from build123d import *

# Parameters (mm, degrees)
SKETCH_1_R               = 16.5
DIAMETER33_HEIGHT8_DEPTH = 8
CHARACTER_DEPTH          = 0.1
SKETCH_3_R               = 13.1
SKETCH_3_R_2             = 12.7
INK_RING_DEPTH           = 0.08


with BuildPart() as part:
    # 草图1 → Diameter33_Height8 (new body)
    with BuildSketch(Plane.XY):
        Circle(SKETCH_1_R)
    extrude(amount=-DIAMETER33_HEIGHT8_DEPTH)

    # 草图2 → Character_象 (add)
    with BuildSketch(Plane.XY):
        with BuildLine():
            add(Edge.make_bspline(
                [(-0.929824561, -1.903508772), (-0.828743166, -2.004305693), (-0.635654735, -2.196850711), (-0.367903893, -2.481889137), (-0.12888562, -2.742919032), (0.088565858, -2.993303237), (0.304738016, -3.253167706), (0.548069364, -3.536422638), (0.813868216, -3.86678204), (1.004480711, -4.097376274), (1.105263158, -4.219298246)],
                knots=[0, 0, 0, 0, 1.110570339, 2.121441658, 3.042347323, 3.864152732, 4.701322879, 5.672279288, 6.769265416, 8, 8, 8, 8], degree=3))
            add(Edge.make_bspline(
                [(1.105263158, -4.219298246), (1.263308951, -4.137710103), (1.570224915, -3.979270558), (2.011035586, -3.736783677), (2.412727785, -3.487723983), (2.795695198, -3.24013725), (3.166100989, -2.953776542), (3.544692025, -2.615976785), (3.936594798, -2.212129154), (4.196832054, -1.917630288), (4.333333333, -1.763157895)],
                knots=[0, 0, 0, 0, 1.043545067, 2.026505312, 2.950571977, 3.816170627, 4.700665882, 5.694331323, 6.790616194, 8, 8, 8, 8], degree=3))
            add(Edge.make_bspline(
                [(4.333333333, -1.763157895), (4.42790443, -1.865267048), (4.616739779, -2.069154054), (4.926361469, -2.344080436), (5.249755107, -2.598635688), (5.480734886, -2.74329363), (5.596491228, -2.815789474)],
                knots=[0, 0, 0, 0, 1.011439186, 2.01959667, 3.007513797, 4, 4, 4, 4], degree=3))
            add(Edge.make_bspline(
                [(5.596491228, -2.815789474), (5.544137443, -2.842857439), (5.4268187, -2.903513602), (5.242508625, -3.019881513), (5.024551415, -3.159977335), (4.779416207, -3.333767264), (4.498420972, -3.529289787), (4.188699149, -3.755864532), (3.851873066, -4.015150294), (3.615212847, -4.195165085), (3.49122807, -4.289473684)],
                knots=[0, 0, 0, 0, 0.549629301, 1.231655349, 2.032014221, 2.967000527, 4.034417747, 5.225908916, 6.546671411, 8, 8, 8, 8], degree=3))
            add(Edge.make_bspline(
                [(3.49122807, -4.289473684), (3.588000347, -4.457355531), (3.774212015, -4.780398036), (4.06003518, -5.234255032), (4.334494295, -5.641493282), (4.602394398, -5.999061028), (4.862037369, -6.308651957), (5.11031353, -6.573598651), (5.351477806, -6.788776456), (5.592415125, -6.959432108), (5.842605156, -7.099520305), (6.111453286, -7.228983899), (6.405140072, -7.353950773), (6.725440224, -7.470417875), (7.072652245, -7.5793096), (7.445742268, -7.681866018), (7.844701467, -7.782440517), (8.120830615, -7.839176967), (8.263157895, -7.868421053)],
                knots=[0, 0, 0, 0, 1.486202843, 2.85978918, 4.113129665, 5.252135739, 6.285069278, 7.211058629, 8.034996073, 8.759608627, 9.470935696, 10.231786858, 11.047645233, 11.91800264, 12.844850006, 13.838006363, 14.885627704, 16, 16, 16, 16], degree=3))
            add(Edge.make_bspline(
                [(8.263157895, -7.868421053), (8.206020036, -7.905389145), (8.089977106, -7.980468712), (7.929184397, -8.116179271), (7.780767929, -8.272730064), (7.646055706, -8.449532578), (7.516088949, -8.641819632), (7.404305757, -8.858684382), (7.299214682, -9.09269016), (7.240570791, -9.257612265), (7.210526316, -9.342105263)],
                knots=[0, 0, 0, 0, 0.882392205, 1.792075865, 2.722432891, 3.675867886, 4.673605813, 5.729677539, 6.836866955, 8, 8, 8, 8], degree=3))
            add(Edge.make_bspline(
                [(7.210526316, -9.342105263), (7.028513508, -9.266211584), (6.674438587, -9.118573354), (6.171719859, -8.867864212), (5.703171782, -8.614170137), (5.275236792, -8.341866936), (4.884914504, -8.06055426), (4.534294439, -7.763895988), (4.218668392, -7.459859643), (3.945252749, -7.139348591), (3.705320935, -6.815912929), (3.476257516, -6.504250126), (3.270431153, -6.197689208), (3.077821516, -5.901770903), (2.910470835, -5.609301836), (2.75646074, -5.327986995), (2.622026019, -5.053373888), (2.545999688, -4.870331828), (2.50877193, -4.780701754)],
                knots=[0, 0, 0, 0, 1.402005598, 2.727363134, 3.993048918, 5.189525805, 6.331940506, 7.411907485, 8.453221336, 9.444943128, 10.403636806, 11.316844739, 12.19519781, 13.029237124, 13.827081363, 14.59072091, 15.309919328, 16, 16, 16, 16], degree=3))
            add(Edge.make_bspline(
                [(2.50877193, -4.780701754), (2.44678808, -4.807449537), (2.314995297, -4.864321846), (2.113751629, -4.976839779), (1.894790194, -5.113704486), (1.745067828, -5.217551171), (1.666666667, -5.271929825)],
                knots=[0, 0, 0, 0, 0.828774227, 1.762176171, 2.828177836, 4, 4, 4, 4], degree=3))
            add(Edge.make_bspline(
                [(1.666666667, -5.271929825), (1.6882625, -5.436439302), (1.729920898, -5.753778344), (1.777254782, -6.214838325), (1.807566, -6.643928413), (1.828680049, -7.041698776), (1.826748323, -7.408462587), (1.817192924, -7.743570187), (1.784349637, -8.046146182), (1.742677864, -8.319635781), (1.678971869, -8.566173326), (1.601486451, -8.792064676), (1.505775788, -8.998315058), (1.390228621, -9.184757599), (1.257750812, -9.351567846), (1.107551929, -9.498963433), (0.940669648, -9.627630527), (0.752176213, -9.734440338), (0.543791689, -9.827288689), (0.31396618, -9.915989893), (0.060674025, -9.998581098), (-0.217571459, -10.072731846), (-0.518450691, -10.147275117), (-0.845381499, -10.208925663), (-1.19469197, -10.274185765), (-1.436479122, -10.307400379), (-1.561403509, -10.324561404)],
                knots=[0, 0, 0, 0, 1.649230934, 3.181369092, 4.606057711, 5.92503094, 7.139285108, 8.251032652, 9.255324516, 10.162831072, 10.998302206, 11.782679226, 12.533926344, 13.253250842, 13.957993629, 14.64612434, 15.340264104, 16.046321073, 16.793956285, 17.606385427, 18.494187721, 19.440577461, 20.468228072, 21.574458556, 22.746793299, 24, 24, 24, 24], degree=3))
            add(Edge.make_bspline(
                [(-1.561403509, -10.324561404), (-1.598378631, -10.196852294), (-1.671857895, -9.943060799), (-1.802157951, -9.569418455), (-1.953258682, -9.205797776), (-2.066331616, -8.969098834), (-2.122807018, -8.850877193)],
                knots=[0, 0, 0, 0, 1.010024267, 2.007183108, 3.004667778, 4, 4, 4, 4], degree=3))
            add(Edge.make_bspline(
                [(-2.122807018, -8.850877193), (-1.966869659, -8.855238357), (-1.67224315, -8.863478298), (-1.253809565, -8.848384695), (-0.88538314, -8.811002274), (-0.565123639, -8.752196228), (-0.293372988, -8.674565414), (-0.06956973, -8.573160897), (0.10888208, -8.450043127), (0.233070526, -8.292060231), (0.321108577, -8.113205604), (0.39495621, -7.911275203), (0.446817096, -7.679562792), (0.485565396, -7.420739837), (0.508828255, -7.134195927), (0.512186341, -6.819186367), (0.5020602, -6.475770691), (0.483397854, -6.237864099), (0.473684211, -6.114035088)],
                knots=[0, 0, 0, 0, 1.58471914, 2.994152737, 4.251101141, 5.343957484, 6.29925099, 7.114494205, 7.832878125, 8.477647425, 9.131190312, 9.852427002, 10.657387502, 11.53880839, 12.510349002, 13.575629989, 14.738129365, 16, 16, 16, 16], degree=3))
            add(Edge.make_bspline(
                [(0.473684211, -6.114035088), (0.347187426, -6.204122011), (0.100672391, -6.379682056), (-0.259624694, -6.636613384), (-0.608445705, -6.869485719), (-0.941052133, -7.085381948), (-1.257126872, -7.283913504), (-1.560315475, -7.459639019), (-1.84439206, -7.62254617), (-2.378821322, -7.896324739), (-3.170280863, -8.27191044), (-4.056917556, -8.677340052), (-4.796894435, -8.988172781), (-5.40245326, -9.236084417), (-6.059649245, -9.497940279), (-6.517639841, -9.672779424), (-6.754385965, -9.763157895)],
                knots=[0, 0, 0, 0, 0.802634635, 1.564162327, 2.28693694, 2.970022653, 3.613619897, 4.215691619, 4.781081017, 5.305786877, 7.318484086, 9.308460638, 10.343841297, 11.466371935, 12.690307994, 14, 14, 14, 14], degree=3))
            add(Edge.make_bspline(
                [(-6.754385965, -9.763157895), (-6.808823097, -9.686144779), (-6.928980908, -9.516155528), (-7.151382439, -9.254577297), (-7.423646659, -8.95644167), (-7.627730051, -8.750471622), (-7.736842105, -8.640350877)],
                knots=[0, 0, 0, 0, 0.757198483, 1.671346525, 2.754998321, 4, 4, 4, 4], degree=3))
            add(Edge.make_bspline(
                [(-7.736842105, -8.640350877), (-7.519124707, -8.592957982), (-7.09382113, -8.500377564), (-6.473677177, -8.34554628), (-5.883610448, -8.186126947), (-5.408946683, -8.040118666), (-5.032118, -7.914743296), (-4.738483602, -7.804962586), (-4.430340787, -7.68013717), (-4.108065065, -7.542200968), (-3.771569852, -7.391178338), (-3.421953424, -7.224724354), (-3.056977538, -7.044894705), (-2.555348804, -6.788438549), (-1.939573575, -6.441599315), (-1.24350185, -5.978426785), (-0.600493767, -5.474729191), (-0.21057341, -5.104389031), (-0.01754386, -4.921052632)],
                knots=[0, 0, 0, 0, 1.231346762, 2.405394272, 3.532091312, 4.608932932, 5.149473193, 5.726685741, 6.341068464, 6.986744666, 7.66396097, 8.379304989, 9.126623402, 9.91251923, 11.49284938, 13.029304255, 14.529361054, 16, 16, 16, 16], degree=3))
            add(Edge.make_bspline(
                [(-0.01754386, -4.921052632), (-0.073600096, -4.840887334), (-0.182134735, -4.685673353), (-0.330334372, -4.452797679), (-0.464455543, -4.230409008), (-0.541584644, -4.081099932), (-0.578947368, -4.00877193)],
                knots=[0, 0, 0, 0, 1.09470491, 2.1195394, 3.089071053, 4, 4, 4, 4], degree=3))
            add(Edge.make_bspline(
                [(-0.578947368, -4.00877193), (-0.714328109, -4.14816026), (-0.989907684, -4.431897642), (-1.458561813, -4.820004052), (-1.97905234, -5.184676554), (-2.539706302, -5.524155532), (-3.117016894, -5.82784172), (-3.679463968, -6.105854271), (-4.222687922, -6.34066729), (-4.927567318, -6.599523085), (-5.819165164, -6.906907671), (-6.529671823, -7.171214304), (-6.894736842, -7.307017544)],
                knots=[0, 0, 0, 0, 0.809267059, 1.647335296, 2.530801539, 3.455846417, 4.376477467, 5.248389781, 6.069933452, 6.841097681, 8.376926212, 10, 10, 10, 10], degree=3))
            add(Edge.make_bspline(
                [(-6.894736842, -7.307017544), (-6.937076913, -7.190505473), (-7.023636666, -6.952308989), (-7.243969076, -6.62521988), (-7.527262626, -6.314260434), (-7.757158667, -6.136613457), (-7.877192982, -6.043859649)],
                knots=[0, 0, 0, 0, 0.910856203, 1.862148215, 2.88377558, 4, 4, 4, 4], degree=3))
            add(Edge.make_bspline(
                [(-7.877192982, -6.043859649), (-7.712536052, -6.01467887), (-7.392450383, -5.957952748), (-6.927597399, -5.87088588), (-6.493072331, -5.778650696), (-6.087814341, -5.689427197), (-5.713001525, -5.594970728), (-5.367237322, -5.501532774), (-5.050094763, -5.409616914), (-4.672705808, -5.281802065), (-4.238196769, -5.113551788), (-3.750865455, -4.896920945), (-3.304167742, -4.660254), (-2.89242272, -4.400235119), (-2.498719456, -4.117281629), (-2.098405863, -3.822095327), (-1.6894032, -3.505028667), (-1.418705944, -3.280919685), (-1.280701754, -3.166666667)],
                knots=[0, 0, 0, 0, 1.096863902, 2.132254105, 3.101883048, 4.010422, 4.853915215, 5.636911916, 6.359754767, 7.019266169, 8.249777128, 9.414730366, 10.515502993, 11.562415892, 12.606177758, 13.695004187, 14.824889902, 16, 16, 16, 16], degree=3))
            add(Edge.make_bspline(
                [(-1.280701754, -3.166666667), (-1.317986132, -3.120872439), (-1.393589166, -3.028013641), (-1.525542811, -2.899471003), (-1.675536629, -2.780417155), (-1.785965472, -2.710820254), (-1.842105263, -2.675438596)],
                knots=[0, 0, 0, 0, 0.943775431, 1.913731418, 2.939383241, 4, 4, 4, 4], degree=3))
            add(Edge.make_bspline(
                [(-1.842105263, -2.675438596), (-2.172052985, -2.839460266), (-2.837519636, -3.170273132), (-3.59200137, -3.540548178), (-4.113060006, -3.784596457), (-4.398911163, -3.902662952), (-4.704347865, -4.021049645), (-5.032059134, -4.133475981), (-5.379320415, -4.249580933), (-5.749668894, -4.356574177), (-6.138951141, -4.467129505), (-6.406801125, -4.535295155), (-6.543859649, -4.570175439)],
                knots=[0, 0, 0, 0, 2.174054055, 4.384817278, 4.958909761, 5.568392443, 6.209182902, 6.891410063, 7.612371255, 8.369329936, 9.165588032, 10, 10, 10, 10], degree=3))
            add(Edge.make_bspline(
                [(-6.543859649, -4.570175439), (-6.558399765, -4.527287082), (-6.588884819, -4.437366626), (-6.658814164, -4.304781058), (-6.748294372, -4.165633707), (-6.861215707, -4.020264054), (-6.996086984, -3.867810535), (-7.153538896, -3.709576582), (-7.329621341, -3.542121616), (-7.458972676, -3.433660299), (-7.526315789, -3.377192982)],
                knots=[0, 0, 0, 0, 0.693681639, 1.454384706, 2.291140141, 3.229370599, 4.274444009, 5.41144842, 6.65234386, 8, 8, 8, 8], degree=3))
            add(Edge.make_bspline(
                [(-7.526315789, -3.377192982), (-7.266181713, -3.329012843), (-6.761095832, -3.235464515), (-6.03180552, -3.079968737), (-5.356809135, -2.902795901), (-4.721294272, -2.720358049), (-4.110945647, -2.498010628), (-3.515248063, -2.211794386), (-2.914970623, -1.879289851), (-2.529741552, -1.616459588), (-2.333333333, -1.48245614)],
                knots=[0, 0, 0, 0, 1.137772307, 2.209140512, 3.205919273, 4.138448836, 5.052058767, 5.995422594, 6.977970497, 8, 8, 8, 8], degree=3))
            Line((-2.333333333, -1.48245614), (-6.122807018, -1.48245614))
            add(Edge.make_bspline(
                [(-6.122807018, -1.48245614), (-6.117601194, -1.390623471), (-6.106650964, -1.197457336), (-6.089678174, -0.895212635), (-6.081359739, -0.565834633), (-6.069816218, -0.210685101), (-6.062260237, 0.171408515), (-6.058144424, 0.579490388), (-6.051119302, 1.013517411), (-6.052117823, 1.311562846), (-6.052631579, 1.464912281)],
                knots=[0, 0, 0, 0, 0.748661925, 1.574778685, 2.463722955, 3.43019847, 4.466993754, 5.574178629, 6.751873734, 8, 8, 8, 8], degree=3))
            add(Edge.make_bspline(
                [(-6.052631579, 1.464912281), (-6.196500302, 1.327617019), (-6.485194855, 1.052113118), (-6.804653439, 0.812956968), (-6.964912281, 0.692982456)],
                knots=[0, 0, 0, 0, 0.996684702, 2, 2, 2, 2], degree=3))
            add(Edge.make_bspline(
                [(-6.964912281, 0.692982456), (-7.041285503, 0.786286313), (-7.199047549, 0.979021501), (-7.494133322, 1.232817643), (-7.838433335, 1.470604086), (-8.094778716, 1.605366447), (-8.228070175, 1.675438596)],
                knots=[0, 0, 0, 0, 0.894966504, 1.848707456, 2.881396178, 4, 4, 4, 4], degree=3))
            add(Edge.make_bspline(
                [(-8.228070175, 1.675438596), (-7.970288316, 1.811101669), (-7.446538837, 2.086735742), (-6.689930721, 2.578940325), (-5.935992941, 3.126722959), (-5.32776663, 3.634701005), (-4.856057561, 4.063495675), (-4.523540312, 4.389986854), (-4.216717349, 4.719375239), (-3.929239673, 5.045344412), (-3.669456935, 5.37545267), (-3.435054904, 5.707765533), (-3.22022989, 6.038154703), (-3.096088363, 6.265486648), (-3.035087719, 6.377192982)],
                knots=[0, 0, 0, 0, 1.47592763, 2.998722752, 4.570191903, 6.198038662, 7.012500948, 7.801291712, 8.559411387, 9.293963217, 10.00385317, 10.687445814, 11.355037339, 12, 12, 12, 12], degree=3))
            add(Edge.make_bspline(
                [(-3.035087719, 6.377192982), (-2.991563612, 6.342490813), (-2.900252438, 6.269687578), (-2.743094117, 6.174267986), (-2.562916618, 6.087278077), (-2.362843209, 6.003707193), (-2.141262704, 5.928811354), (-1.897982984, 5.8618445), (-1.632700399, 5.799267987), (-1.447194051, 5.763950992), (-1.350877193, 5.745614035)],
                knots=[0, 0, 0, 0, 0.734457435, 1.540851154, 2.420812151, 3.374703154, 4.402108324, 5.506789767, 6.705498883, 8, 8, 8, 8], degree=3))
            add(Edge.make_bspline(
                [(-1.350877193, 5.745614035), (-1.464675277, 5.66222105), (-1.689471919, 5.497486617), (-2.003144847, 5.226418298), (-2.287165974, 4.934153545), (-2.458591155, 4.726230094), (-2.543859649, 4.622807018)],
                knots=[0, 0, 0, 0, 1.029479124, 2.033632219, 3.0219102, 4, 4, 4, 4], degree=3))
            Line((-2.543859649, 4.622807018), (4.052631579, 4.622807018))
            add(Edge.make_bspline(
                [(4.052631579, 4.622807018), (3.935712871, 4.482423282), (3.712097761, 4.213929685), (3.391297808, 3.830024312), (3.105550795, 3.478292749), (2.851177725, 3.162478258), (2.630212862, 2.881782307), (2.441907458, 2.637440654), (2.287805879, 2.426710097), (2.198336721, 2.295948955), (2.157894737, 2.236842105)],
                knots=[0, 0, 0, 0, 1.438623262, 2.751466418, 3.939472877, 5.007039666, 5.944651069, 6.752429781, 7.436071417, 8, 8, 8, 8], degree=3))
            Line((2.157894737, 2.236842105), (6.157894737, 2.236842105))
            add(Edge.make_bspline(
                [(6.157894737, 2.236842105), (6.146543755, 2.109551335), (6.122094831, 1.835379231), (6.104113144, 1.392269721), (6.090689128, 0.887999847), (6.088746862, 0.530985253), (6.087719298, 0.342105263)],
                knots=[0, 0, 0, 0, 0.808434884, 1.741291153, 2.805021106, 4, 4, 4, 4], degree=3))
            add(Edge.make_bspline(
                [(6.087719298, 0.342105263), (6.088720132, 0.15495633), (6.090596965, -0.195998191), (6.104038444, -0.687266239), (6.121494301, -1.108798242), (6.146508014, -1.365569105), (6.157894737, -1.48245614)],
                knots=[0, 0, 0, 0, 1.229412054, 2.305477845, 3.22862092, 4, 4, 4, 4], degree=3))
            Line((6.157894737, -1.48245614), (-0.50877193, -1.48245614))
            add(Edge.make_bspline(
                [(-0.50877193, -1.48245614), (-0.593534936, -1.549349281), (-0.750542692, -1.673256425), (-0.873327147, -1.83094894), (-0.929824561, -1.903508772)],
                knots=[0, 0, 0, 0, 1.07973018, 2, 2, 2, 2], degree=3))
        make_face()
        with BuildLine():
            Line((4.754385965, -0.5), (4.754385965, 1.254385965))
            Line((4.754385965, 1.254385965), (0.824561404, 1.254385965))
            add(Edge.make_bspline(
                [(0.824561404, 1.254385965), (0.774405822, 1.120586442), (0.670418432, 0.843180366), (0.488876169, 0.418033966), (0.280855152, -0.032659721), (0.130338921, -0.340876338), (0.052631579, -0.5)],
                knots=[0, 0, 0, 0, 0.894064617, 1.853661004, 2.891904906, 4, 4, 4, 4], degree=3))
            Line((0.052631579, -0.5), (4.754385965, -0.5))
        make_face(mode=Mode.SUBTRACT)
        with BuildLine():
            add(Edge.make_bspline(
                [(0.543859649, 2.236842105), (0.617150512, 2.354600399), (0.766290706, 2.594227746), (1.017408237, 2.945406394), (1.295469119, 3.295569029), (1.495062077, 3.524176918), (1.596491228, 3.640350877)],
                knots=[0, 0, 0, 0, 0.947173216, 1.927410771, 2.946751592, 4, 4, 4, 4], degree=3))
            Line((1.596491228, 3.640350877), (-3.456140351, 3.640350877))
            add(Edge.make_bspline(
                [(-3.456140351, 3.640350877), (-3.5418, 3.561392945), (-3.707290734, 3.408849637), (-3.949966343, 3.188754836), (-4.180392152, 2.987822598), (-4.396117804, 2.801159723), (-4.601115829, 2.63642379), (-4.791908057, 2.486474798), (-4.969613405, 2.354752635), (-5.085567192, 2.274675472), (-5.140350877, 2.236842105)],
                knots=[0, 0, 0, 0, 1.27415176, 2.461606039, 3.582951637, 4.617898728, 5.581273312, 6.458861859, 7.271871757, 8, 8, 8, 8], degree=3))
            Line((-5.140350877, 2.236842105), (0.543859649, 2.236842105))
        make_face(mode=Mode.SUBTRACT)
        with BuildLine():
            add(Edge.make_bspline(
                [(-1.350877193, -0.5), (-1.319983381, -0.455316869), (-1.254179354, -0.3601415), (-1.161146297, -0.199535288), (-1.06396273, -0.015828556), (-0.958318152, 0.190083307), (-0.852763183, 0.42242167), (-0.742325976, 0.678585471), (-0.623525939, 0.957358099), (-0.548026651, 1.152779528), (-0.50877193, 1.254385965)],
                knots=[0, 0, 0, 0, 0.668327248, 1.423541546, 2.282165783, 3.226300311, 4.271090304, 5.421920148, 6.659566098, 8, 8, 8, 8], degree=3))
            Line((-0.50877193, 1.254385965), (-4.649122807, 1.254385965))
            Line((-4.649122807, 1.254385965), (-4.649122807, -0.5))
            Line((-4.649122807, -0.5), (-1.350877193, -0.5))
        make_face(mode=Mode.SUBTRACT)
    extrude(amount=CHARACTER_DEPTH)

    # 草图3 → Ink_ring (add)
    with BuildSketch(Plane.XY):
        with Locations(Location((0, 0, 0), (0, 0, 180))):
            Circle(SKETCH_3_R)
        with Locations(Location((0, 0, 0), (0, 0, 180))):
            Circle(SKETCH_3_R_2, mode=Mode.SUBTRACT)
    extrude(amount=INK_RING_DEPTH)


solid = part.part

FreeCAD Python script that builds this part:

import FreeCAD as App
import Part
import Sketcher
Q = App.Units.Quantity

doc = App.newDocument("Part")
body = doc.addObject("PartDesign::Body", "Body")

# Sketch on XY plane
sketch1 = body.newObject("Sketcher::SketchObject", "Sketch")
sketch1.AttachmentSupport = (doc.getObject("XY_Plane"), [""])
sketch1.MapMode = "FlatFace"
sketch1.addGeometry(Part.Circle(App.Vector(0, 0, 0), App.Vector(0, 0, 1), 16), False)
sketch1.addConstraint([
    Sketcher.Constraint("Coincident", 0, 3, -1, 1),
    Sketcher.Constraint("Diameter", 0, Q("33 mm")),
])
pad1 = body.newObject("PartDesign::Pad", "Pad")
pad1.Profile = sketch1
pad1.Length = 8
pad1.Reversed = True

# Sketch on XY plane
sketch2 = body.newObject("Sketcher::SketchObject", "Sketch001")
sketch2.AttachmentSupport = (doc.getObject("XY_Plane"), [""])
sketch2.MapMode = "FlatFace"
sketch2.addGeometry([
    Part.BSplineCurve([App.Vector(-0.929825, -1.903509, 0), App.Vector(-0.828743, -2.004306, 0), App.Vector(-0.635655, -2.196851, 0), App.Vector(-0.367904, -2.481889, 0), App.Vector(-0.128886, -2.742919, 0), App.Vector(0.088566, -2.993303, 0), App.Vector(0.304738, -3.253168, 0), App.Vector(0.548069, -3.536423, 0), App.Vector(0.813868, -3.866782, 0), App.Vector(1.004481, -4.097376, 0), App.Vector(1.105263, -4.219298, 0)], [4, 1, 1, 1, 1, 1, 1, 1, 4], [0, 1.110570339, 2.121441658, 3.042347323, 3.864152732, 4.701322879, 5.672279288, 6.769265416, 8], False, 3, [1, 1, 1, 1, 1, 1, 1, 1, 1, 1, 1], False),  # 0
    Part.BSplineCurve([App.Vector(-0.508772, -1.482456, 0), App.Vector(-0.593535, -1.549349, 0), App.Vector(-0.750543, -1.673256, 0), App.Vector(-0.873327, -1.830949, 0), App.Vector(-0.929825, -1.903509, 0)], [4, 1, 4], [0, 1.07973018, 2], False, 3, [1, 1, 1, 1, 1], False),  # 1
    Part.LineSegment(App.Vector(-0.508772, -1.482456, 0), App.Vector(6.157895, -1.482456, 0)),  # 2
    Part.BSplineCurve([App.Vector(6.087719, 0.342105, 0), App.Vector(6.08872, 0.154956, 0), App.Vector(6.090597, -0.195998, 0), App.Vector(6.104038, -0.687266, 0), App.Vector(6.121494, -1.108798, 0), App.Vector(6.146508, -1.365569, 0), App.Vector(6.157895, -1.482456, 0)], [4, 1, 1, 1, 4], [0, 1.229412054, 2.305477845, 3.22862092, 4], False, 3, [1, 1, 1, 1, 1, 1, 1], False),  # 3
    Part.BSplineCurve([App.Vector(6.157895, 2.236842, 0), App.Vector(6.146544, 2.109551, 0), App.Vector(6.122095, 1.835379, 0), App.Vector(6.104113, 1.39227, 0), App.Vector(6.090689, 0.888, 0), App.Vector(6.088747, 0.530985, 0), App.Vector(6.087719, 0.342105, 0)], [4, 1, 1, 1, 4], [0, 0.808434884, 1.741291153, 2.805021106, 4], False, 3, [1, 1, 1, 1, 1, 1, 1], False),  # 4
    Part.LineSegment(App.Vector(6.157895, 2.236842, 0), App.Vector(2.157895, 2.236842, 0)),  # 5
    Part.BSplineCurve([App.Vector(4.052632, 4.622807, 0), App.Vector(3.935713, 4.482423, 0), App.Vector(3.712098, 4.21393, 0), App.Vector(3.391298, 3.830024, 0), App.Vector(3.105551, 3.478293, 0), App.Vector(2.851178, 3.162478, 0), App.Vector(2.630213, 2.881782, 0), App.Vector(2.441907, 2.637441, 0), App.Vector(2.287806, 2.42671, 0), App.Vector(2.198337, 2.295949, 0), App.Vector(2.157895, 2.236842, 0)], [4, 1, 1, 1, 1, 1, 1, 1, 4], [0, 1.438623262, 2.751466418, 3.939472877, 5.007039666, 5.944651069, 6.752429781, 7.436071417, 8], False, 3, [1, 1, 1, 1, 1, 1, 1, 1, 1, 1, 1], False),  # 6
    Part.LineSegment(App.Vector(4.052632, 4.622807, 0), App.Vector(-2.54386, 4.622807, 0)),  # 7
    Part.BSplineCurve([App.Vector(-1.350877, 5.745614, 0), App.Vector(-1.464675, 5.662221, 0), App.Vector(-1.689472, 5.497487, 0), App.Vector(-2.003145, 5.226418, 0), App.Vector(-2.287166, 4.934154, 0), App.Vector(-2.458591, 4.72623, 0), App.Vector(-2.54386, 4.622807, 0)], [4, 1, 1, 1, 4], [0, 1.029479124, 2.033632219, 3.0219102, 4], False, 3, [1, 1, 1, 1, 1, 1, 1], False),  # 8
    Part.BSplineCurve([App.Vector(-3.035088, 6.377193, 0), App.Vector(-2.991564, 6.342491, 0), App.Vector(-2.900252, 6.269688, 0), App.Vector(-2.743094, 6.174268, 0), App.Vector(-2.562917, 6.087278, 0), App.Vector(-2.362843, 6.003707, 0), App.Vector(-2.141263, 5.928811, 0), App.Vector(-1.897983, 5.861845, 0), App.Vector(-1.6327, 5.799268, 0), App.Vector(-1.447194, 5.763951, 0), App.Vector(-1.350877, 5.745614, 0)], [4, 1, 1, 1, 1, 1, 1, 1, 4], [0, 0.734457435, 1.540851154, 2.420812151, 3.374703154, 4.402108324, 5.506789767, 6.705498883, 8], False, 3, [1, 1, 1, 1, 1, 1, 1, 1, 1, 1, 1], False),  # 9
    Part.BSplineCurve([App.Vector(-8.22807, 1.675439, 0), App.Vector(-7.970288, 1.811102, 0), App.Vector(-7.446539, 2.086736, 0), App.Vector(-6.689931, 2.57894, 0), App.Vector(-5.935993, 3.126723, 0), App.Vector(-5.327767, 3.634701, 0), App.Vector(-4.856058, 4.063496, 0), App.Vector(-4.52354, 4.389987, 0), App.Vector(-4.216717, 4.719375, 0), App.Vector(-3.92924, 5.045344, 0), App.Vector(-3.669457, 5.375453, 0), App.Vector(-3.435055, 5.707766, 0), App.Vector(-3.22023, 6.038155, 0), App.Vector(-3.096088, 6.265487, 0), App.Vector(-3.035088, 6.377193, 0)], [4, 1, 1, 1, 1, 1, 1, 1, 1, 1, 1, 1, 4], [0, 1.47592763, 2.998722752, 4.570191903, 6.198038662, 7.012500948, 7.801291712, 8.559411387, 9.293963217, 10.00385317, 10.687445814, 11.355037339, 12], False, 3, [1, 1, 1, 1, 1, 1, 1, 1, 1, 1, 1, 1, 1, 1, 1], False),  # 10
    Part.BSplineCurve([App.Vector(-6.964912, 0.692982, 0), App.Vector(-7.041286, 0.786286, 0), App.Vector(-7.199048, 0.979022, 0), App.Vector(-7.494133, 1.232818, 0), App.Vector(-7.838433, 1.470604, 0), App.Vector(-8.094779, 1.605366, 0), App.Vector(-8.22807, 1.675439, 0)], [4, 1, 1, 1, 4], [0, 0.894966504, 1.848707456, 2.881396178, 4], False, 3, [1, 1, 1, 1, 1, 1, 1], False),  # 11
    Part.BSplineCurve([App.Vector(-6.052632, 1.464912, 0), App.Vector(-6.1965, 1.327617, 0), App.Vector(-6.485195, 1.052113, 0), App.Vector(-6.804653, 0.812957, 0), App.Vector(-6.964912, 0.692982, 0)], [4, 1, 4], [0, 0.996684702, 2], False, 3, [1, 1, 1, 1, 1], False),  # 12
    Part.BSplineCurve([App.Vector(-6.122807, -1.482456, 0), App.Vector(-6.117601, -1.390623, 0), App.Vector(-6.106651, -1.197457, 0), App.Vector(-6.089678, -0.895213, 0), App.Vector(-6.08136, -0.565835, 0), App.Vector(-6.069816, -0.210685, 0), App.Vector(-6.06226, 0.171409, 0), App.Vector(-6.058144, 0.57949, 0), App.Vector(-6.051119, 1.013517, 0), App.Vector(-6.052118, 1.311563, 0), App.Vector(-6.052632, 1.464912, 0)], [4, 1, 1, 1, 1, 1, 1, 1, 4], [0, 0.748661925, 1.574778685, 2.463722955, 3.43019847, 4.466993754, 5.574178629, 6.751873734, 8], False, 3, [1, 1, 1, 1, 1, 1, 1, 1, 1, 1, 1], False),  # 13
    Part.LineSegment(App.Vector(-6.122807, -1.482456, 0), App.Vector(-2.333333, -1.482456, 0)),  # 14
    Part.BSplineCurve([App.Vector(-7.526316, -3.377193, 0), App.Vector(-7.266182, -3.329013, 0), App.Vector(-6.761096, -3.235465, 0), App.Vector(-6.031806, -3.079969, 0), App.Vector(-5.356809, -2.902796, 0), App.Vector(-4.721294, -2.720358, 0), App.Vector(-4.110946, -2.498011, 0), App.Vector(-3.515248, -2.211794, 0), App.Vector(-2.914971, -1.87929, 0), App.Vector(-2.529742, -1.61646, 0), App.Vector(-2.333333, -1.482456, 0)], [4, 1, 1, 1, 1, 1, 1, 1, 4], [0, 1.137772307, 2.209140512, 3.205919273, 4.138448836, 5.052058767, 5.995422594, 6.977970497, 8], False, 3, [1, 1, 1, 1, 1, 1, 1, 1, 1, 1, 1], False),  # 15
    Part.BSplineCurve([App.Vector(-6.54386, -4.570175, 0), App.Vector(-6.5584, -4.527287, 0), App.Vector(-6.588885, -4.437367, 0), App.Vector(-6.658814, -4.304781, 0), App.Vector(-6.748294, -4.165634, 0), App.Vector(-6.861216, -4.020264, 0), App.Vector(-6.996087, -3.867811, 0), App.Vector(-7.153539, -3.709577, 0), App.Vector(-7.329621, -3.542122, 0), App.Vector(-7.458973, -3.43366, 0), App.Vector(-7.526316, -3.377193, 0)], [4, 1, 1, 1, 1, 1, 1, 1, 4], [0, 0.693681639, 1.454384706, 2.291140141, 3.229370599, 4.274444009, 5.41144842, 6.65234386, 8], False, 3, [1, 1, 1, 1, 1, 1, 1, 1, 1, 1, 1], False),  # 16
    Part.BSplineCurve([App.Vector(-1.842105, -2.675439, 0), App.Vector(-2.172053, -2.83946, 0), App.Vector(-2.83752, -3.170273, 0), App.Vector(-3.592001, -3.540548, 0), App.Vector(-4.11306, -3.784596, 0), App.Vector(-4.398911, -3.902663, 0), App.Vector(-4.704348, -4.02105, 0), App.Vector(-5.032059, -4.133476, 0), App.Vector(-5.37932, -4.249581, 0), App.Vector(-5.749669, -4.356574, 0), App.Vector(-6.138951, -4.46713, 0), App.Vector(-6.406801, -4.535295, 0), App.Vector(-6.54386, -4.570175, 0)], [4, 1, 1, 1, 1, 1, 1, 1, 1, 1, 4], [0, 2.174054055, 4.384817278, 4.958909761, 5.568392443, 6.209182902, 6.891410063, 7.612371255, 8.369329936, 9.165588032, 10], False, 3, [1, 1, 1, 1, 1, 1, 1, 1, 1, 1, 1, 1, 1], False),  # 17
    Part.BSplineCurve([App.Vector(-1.280702, -3.166667, 0), App.Vector(-1.317986, -3.120872, 0), App.Vector(-1.393589, -3.028014, 0), App.Vector(-1.525543, -2.899471, 0), App.Vector(-1.675537, -2.780417, 0), App.Vector(-1.785965, -2.71082, 0), App.Vector(-1.842105, -2.675439, 0)], [4, 1, 1, 1, 4], [0, 0.943775431, 1.913731418, 2.939383241, 4], False, 3, [1, 1, 1, 1, 1, 1, 1], False),  # 18
    Part.BSplineCurve([App.Vector(-7.877193, -6.04386, 0), App.Vector(-7.712536, -6.014679, 0), App.Vector(-7.39245, -5.957953, 0), App.Vector(-6.927597, -5.870886, 0), App.Vector(-6.493072, -5.778651, 0), App.Vector(-6.087814, -5.689427, 0), App.Vector(-5.713002, -5.594971, 0), App.Vector(-5.367237, -5.501533, 0), App.Vector(-5.050095, -5.409617, 0), App.Vector(-4.672706, -5.281802, 0), App.Vector(-4.238197, -5.113552, 0), App.Vector(-3.750865, -4.896921, 0), App.Vector(-3.304168, -4.660254, 0), App.Vector(-2.892423, -4.400235, 0), App.Vector(-2.498719, -4.117282, 0), App.Vector(-2.098406, -3.822095, 0), App.Vector(-1.689403, -3.505029, 0), App.Vector(-1.418706, -3.28092, 0), App.Vector(-1.280702, -3.166667, 0)], [4, 1, 1, 1, 1, 1, 1, 1, 1, 1, 1, 1, 1, 1, 1, 1, 4], [0, 1.096863902, 2.132254105, 3.101883048, 4.010422, 4.853915215, 5.636911916, 6.359754767, 7.019266169, 8.249777128, 9.414730366, 10.515502993, 11.562415892, 12.606177758, 13.695004187, 14.824889902, 16], False, 3, [1, 1, 1, 1, 1, 1, 1, 1, 1, 1, 1, 1, 1, 1, 1, 1, 1, 1, 1], False),  # 19
    Part.BSplineCurve([App.Vector(-6.894737, -7.307018, 0), App.Vector(-6.937077, -7.190505, 0), App.Vector(-7.023637, -6.952309, 0), App.Vector(-7.243969, -6.62522, 0), App.Vector(-7.527263, -6.31426, 0), App.Vector(-7.757159, -6.136613, 0), App.Vector(-7.877193, -6.04386, 0)], [4, 1, 1, 1, 4], [0, 0.910856203, 1.862148215, 2.88377558, 4], False, 3, [1, 1, 1, 1, 1, 1, 1], False),  # 20
    Part.BSplineCurve([App.Vector(-0.578947, -4.008772, 0), App.Vector(-0.714328, -4.14816, 0), App.Vector(-0.989908, -4.431898, 0), App.Vector(-1.458562, -4.820004, 0), App.Vector(-1.979052, -5.184677, 0), App.Vector(-2.539706, -5.524156, 0), App.Vector(-3.117017, -5.827842, 0), App.Vector(-3.679464, -6.105854, 0), App.Vector(-4.222688, -6.340667, 0), App.Vector(-4.927567, -6.599523, 0), App.Vector(-5.819165, -6.906908, 0), App.Vector(-6.529672, -7.171214, 0), App.Vector(-6.894737, -7.307018, 0)], [4, 1, 1, 1, 1, 1, 1, 1, 1, 1, 4], [0, 0.809267059, 1.647335296, 2.530801539, 3.455846417, 4.376477467, 5.248389781, 6.069933452, 6.841097681, 8.376926212, 10], False, 3, [1, 1, 1, 1, 1, 1, 1, 1, 1, 1, 1, 1, 1], False),  # 21
    Part.BSplineCurve([App.Vector(-0.017544, -4.921053, 0), App.Vector(-0.0736, -4.840887, 0), App.Vector(-0.182135, -4.685673, 0), App.Vector(-0.330334, -4.452798, 0), App.Vector(-0.464456, -4.230409, 0), App.Vector(-0.541585, -4.0811, 0), App.Vector(-0.578947, -4.008772, 0)], [4, 1, 1, 1, 4], [0, 1.09470491, 2.1195394, 3.089071053, 4], False, 3, [1, 1, 1, 1, 1, 1, 1], False),  # 22
    Part.BSplineCurve([App.Vector(-7.736842, -8.640351, 0), App.Vector(-7.519125, -8.592958, 0), App.Vector(-7.093821, -8.500378, 0), App.Vector(-6.473677, -8.345546, 0), App.Vector(-5.88361, -8.186127, 0), App.Vector(-5.408947, -8.040119, 0), App.Vector(-5.032118, -7.914743, 0), App.Vector(-4.738484, -7.804963, 0), App.Vector(-4.430341, -7.680137, 0), App.Vector(-4.108065, -7.542201, 0), App.Vector(-3.77157, -7.391178, 0), App.Vector(-3.421953, -7.224724, 0), App.Vector(-3.056978, -7.044895, 0), App.Vector(-2.555349, -6.788439, 0), App.Vector(-1.939574, -6.441599, 0), App.Vector(-1.243502, -5.978427, 0), App.Vector(-0.600494, -5.474729, 0), App.Vector(-0.210573, -5.104389, 0), App.Vector(-0.017544, -4.921053, 0)], [4, 1, 1, 1, 1, 1, 1, 1, 1, 1, 1, 1, 1, 1, 1, 1, 4], [0, 1.231346762, 2.405394272, 3.532091312, 4.608932932, 5.149473193, 5.726685741, 6.341068464, 6.986744666, 7.66396097, 8.379304989, 9.126623402, 9.91251923, 11.49284938, 13.029304255, 14.529361054, 16], False, 3, [1, 1, 1, 1, 1, 1, 1, 1, 1, 1, 1, 1, 1, 1, 1, 1, 1, 1, 1], False),  # 23
    Part.BSplineCurve([App.Vector(-6.754386, -9.763158, 0), App.Vector(-6.808823, -9.686145, 0), App.Vector(-6.928981, -9.516156, 0), App.Vector(-7.151382, -9.254577, 0), App.Vector(-7.423647, -8.956442, 0), App.Vector(-7.62773, -8.750472, 0), App.Vector(-7.736842, -8.640351, 0)], [4, 1, 1, 1, 4], [0, 0.757198483, 1.671346525, 2.754998321, 4], False, 3, [1, 1, 1, 1, 1, 1, 1], False),  # 24
    Part.BSplineCurve([App.Vector(0.473684, -6.114035, 0), App.Vector(0.347187, -6.204122, 0), App.Vector(0.100672, -6.379682, 0), App.Vector(-0.259625, -6.636613, 0), App.Vector(-0.608446, -6.869486, 0), App.Vector(-0.941052, -7.085382, 0), App.Vector(-1.257127, -7.283914, 0), App.Vector(-1.560315, -7.459639, 0), App.Vector(-1.844392, -7.622546, 0), App.Vector(-2.378821, -7.896325, 0), App.Vector(-3.170281, -8.27191, 0), App.Vector(-4.056918, -8.67734, 0), App.Vector(-4.796894, -8.988173, 0), App.Vector(-5.402453, -9.236084, 0), App.Vector(-6.059649, -9.49794, 0), App.Vector(-6.51764, -9.672779, 0), App.Vector(-6.754386, -9.763158, 0)], [4, 1, 1, 1, 1, 1, 1, 1, 1, 1, 1, 1, 1, 1, 4], [0, 0.802634635, 1.564162327, 2.28693694, 2.970022653, 3.613619897, 4.215691619, 4.781081017, 5.305786877, 7.318484086, 9.308460638, 10.343841297, 11.466371935, 12.690307994, 14], False, 3, [1, 1, 1, 1, 1, 1, 1, 1, 1, 1, 1, 1, 1, 1, 1, 1, 1], False),  # 25
    Part.BSplineCurve([App.Vector(-2.122807, -8.850877, 0), App.Vector(-1.96687, -8.855238, 0), App.Vector(-1.672243, -8.863478, 0), App.Vector(-1.25381, -8.848385, 0), App.Vector(-0.885383, -8.811002, 0), App.Vector(-0.565124, -8.752196, 0), App.Vector(-0.293373, -8.674565, 0), App.Vector(-0.06957, -8.573161, 0), App.Vector(0.108882, -8.450043, 0), App.Vector(0.233071, -8.29206, 0), App.Vector(0.321109, -8.113206, 0), App.Vector(0.394956, -7.911275, 0), App.Vector(0.446817, -7.679563, 0), App.Vector(0.485565, -7.42074, 0), App.Vector(0.508828, -7.134196, 0), App.Vector(0.512186, -6.819186, 0), App.Vector(0.50206, -6.475771, 0), App.Vector(0.483398, -6.237864, 0), App.Vector(0.473684, -6.114035, 0)], [4, 1, 1, 1, 1, 1, 1, 1, 1, 1, 1, 1, 1, 1, 1, 1, 4], [0, 1.58471914, 2.994152737, 4.251101141, 5.343957484, 6.29925099, 7.114494205, 7.832878125, 8.477647425, 9.131190312, 9.852427002, 10.657387502, 11.53880839, 12.510349002, 13.575629989, 14.738129365, 16], False, 3, [1, 1, 1, 1, 1, 1, 1, 1, 1, 1, 1, 1, 1, 1, 1, 1, 1, 1, 1], False),  # 26
    Part.BSplineCurve([App.Vector(-1.561404, -10.324561, 0), App.Vector(-1.598379, -10.196852, 0), App.Vector(-1.671858, -9.943061, 0), App.Vector(-1.802158, -9.569418, 0), App.Vector(-1.953259, -9.205798, 0), App.Vector(-2.066332, -8.969099, 0), App.Vector(-2.122807, -8.850877, 0)], [4, 1, 1, 1, 4], [0, 1.010024267, 2.007183108, 3.004667778, 4], False, 3, [1, 1, 1, 1, 1, 1, 1], False),  # 27
    Part.BSplineCurve([App.Vector(1.666667, -5.27193, 0), App.Vector(1.688262, -5.436439, 0), App.Vector(1.729921, -5.753778, 0), App.Vector(1.777255, -6.214838, 0), App.Vector(1.807566, -6.643928, 0), App.Vector(1.82868, -7.041699, 0), App.Vector(1.826748, -7.408463, 0), App.Vector(1.817193, -7.74357, 0), App.Vector(1.78435, -8.046146, 0), App.Vector(1.742678, -8.319636, 0), App.Vector(1.678972, -8.566173, 0), App.Vector(1.601486, -8.792065, 0), App.Vector(1.505776, -8.998315, 0), App.Vector(1.390229, -9.184758, 0), App.Vector(1.257751, -9.351568, 0), App.Vector(1.107552, -9.498963, 0), App.Vector(0.94067, -9.627631, 0), App.Vector(0.752176, -9.73444, 0), App.Vector(0.543792, -9.827289, 0), App.Vector(0.313966, -9.91599, 0), App.Vector(0.060674, -9.998581, 0), App.Vector(-0.217571, -10.072732, 0), App.Vector(-0.518451, -10.147275, 0), App.Vector(-0.845381, -10.208926, 0), App.Vector(-1.194692, -10.274186, 0), App.Vector(-1.436479, -10.3074, 0), App.Vector(-1.561404, -10.324561, 0)], [4, 1, 1, 1, 1, 1, 1, 1, 1, 1, 1, 1, 1, 1, 1, 1, 1, 1, 1, 1, 1, 1, 1, 1, 4], [0, 1.649230934, 3.181369092, 4.606057711, 5.92503094, 7.139285108, 8.251032652, 9.255324516, 10.162831072, 10.998302206, 11.782679226, 12.533926344, 13.253250842, 13.957993629, 14.64612434, 15.340264104, 16.046321073, 16.793956285, 17.606385427, 18.494187721, 19.440577461, 20.468228072, 21.574458556, 22.746793299, 24], False, 3, [1, 1, 1, 1, 1, 1, 1, 1, 1, 1, 1, 1, 1, 1, 1, 1, 1, 1, 1, 1, 1, 1, 1, 1, 1, 1, 1], False),  # 28
    Part.BSplineCurve([App.Vector(2.508772, -4.780702, 0), App.Vector(2.446788, -4.80745, 0), App.Vector(2.314995, -4.864322, 0), App.Vector(2.113752, -4.97684, 0), App.Vector(1.89479, -5.113704, 0), App.Vector(1.745068, -5.217551, 0), App.Vector(1.666667, -5.27193, 0)], [4, 1, 1, 1, 4], [0, 0.828774227, 1.762176171, 2.828177836, 4], False, 3, [1, 1, 1, 1, 1, 1, 1], False),  # 29
    Part.BSplineCurve([App.Vector(7.210526, -9.342105, 0), App.Vector(7.028514, -9.266212, 0), App.Vector(6.674439, -9.118573, 0), App.Vector(6.17172, -8.867864, 0), App.Vector(5.703172, -8.61417, 0), App.Vector(5.275237, -8.341867, 0), App.Vector(4.884915, -8.060554, 0), App.Vector(4.534294, -7.763896, 0), App.Vector(4.218668, -7.45986, 0), App.Vector(3.945253, -7.139349, 0), App.Vector(3.705321, -6.815913, 0), App.Vector(3.476258, -6.50425, 0), App.Vector(3.270431, -6.197689, 0), App.Vector(3.077822, -5.901771, 0), App.Vector(2.910471, -5.609302, 0), App.Vector(2.756461, -5.327987, 0), App.Vector(2.622026, -5.053374, 0), App.Vector(2.546, -4.870332, 0), App.Vector(2.508772, -4.780702, 0)], [4, 1, 1, 1, 1, 1, 1, 1, 1, 1, 1, 1, 1, 1, 1, 1, 4], [0, 1.402005598, 2.727363134, 3.993048918, 5.189525805, 6.331940506, 7.411907485, 8.453221336, 9.444943128, 10.403636806, 11.316844739, 12.19519781, 13.029237124, 13.827081363, 14.59072091, 15.309919328, 16], False, 3, [1, 1, 1, 1, 1, 1, 1, 1, 1, 1, 1, 1, 1, 1, 1, 1, 1, 1, 1], False),  # 30
    Part.BSplineCurve([App.Vector(8.263158, -7.868421, 0), App.Vector(8.20602, -7.905389, 0), App.Vector(8.089977, -7.980469, 0), App.Vector(7.929184, -8.116179, 0), App.Vector(7.780768, -8.27273, 0), App.Vector(7.646056, -8.449533, 0), App.Vector(7.516089, -8.64182, 0), App.Vector(7.404306, -8.858684, 0), App.Vector(7.299215, -9.09269, 0), App.Vector(7.240571, -9.257612, 0), App.Vector(7.210526, -9.342105, 0)], [4, 1, 1, 1, 1, 1, 1, 1, 4], [0, 0.882392205, 1.792075865, 2.722432891, 3.675867886, 4.673605813, 5.729677539, 6.836866955, 8], False, 3, [1, 1, 1, 1, 1, 1, 1, 1, 1, 1, 1], False),  # 31
    Part.BSplineCurve([App.Vector(3.491228, -4.289474, 0), App.Vector(3.588, -4.457356, 0), App.Vector(3.774212, -4.780398, 0), App.Vector(4.060035, -5.234255, 0), App.Vector(4.334494, -5.641493, 0), App.Vector(4.602394, -5.999061, 0), App.Vector(4.862037, -6.308652, 0), App.Vector(5.110314, -6.573599, 0), App.Vector(5.351478, -6.788776, 0), App.Vector(5.592415, -6.959432, 0), App.Vector(5.842605, -7.09952, 0), App.Vector(6.111453, -7.228984, 0), App.Vector(6.40514, -7.353951, 0), App.Vector(6.72544, -7.470418, 0), App.Vector(7.072652, -7.57931, 0), App.Vector(7.445742, -7.681866, 0), App.Vector(7.844701, -7.782441, 0), App.Vector(8.120831, -7.839177, 0), App.Vector(8.263158, -7.868421, 0)], [4, 1, 1, 1, 1, 1, 1, 1, 1, 1, 1, 1, 1, 1, 1, 1, 4], [0, 1.486202843, 2.85978918, 4.113129665, 5.252135739, 6.285069278, 7.211058629, 8.034996073, 8.759608627, 9.470935696, 10.231786858, 11.047645233, 11.91800264, 12.844850006, 13.838006363, 14.885627704, 16], False, 3, [1, 1, 1, 1, 1, 1, 1, 1, 1, 1, 1, 1, 1, 1, 1, 1, 1, 1, 1], False),  # 32
    Part.BSplineCurve([App.Vector(5.596491, -2.815789, 0), App.Vector(5.544137, -2.842857, 0), App.Vector(5.426819, -2.903514, 0), App.Vector(5.242509, -3.019882, 0), App.Vector(5.024551, -3.159977, 0), App.Vector(4.779416, -3.333767, 0), App.Vector(4.498421, -3.52929, 0), App.Vector(4.188699, -3.755865, 0), App.Vector(3.851873, -4.01515, 0), App.Vector(3.615213, -4.195165, 0), App.Vector(3.491228, -4.289474, 0)], [4, 1, 1, 1, 1, 1, 1, 1, 4], [0, 0.549629301, 1.231655349, 2.032014221, 2.967000527, 4.034417747, 5.225908916, 6.546671411, 8], False, 3, [1, 1, 1, 1, 1, 1, 1, 1, 1, 1, 1], False),  # 33
    Part.BSplineCurve([App.Vector(4.333333, -1.763158, 0), App.Vector(4.427904, -1.865267, 0), App.Vector(4.61674, -2.069154, 0), App.Vector(4.926361, -2.34408, 0), App.Vector(5.249755, -2.598636, 0), App.Vector(5.480735, -2.743294, 0), App.Vector(5.596491, -2.815789, 0)], [4, 1, 1, 1, 4], [0, 1.011439186, 2.01959667, 3.007513797, 4], False, 3, [1, 1, 1, 1, 1, 1, 1], False),  # 34
    Part.BSplineCurve([App.Vector(1.105263, -4.219298, 0), App.Vector(1.263309, -4.13771, 0), App.Vector(1.570225, -3.979271, 0), App.Vector(2.011036, -3.736784, 0), App.Vector(2.412728, -3.487724, 0), App.Vector(2.795695, -3.240137, 0), App.Vector(3.166101, -2.953777, 0), App.Vector(3.544692, -2.615977, 0), App.Vector(3.936595, -2.212129, 0), App.Vector(4.196832, -1.91763, 0), App.Vector(4.333333, -1.763158, 0)], [4, 1, 1, 1, 1, 1, 1, 1, 4], [0, 1.043545067, 2.026505312, 2.950571977, 3.816170627, 4.700665882, 5.694331323, 6.790616194, 8], False, 3, [1, 1, 1, 1, 1, 1, 1, 1, 1, 1, 1], False),  # 35
    Part.LineSegment(App.Vector(4.754386, -0.5, 0), App.Vector(0.052632, -0.5, 0)),  # 36
    Part.BSplineCurve([App.Vector(0.824561, 1.254386, 0), App.Vector(0.774406, 1.120586, 0), App.Vector(0.670418, 0.84318, 0), App.Vector(0.488876, 0.418034, 0), App.Vector(0.280855, -0.03266, 0), App.Vector(0.130339, -0.340876, 0), App.Vector(0.052632, -0.5, 0)], [4, 1, 1, 1, 4], [0, 0.894064617, 1.853661004, 2.891904906, 4], False, 3, [1, 1, 1, 1, 1, 1, 1], False),  # 37
    Part.LineSegment(App.Vector(0.824561, 1.254386, 0), App.Vector(4.754386, 1.254386, 0)),  # 38
    Part.LineSegment(App.Vector(4.754386, 1.254386, 0), App.Vector(4.754386, -0.5, 0)),  # 39
    Part.LineSegment(App.Vector(-1.350877, -0.5, 0), App.Vector(-4.649123, -0.5, 0)),  # 40
    Part.LineSegment(App.Vector(-4.649123, -0.5, 0), App.Vector(-4.649123, 1.254386, 0)),  # 41
    Part.LineSegment(App.Vector(-4.649123, 1.254386, 0), App.Vector(-0.508772, 1.254386, 0)),  # 42
    Part.BSplineCurve([App.Vector(-1.350877, -0.5, 0), App.Vector(-1.319983, -0.455317, 0), App.Vector(-1.254179, -0.360142, 0), App.Vector(-1.161146, -0.199535, 0), App.Vector(-1.063963, -0.015829, 0), App.Vector(-0.958318, 0.190083, 0), App.Vector(-0.852763, 0.422422, 0), App.Vector(-0.742326, 0.678585, 0), App.Vector(-0.623526, 0.957358, 0), App.Vector(-0.548027, 1.15278, 0), App.Vector(-0.508772, 1.254386, 0)], [4, 1, 1, 1, 1, 1, 1, 1, 4], [0, 0.668327248, 1.423541546, 2.282165783, 3.226300311, 4.271090304, 5.421920148, 6.659566098, 8], False, 3, [1, 1, 1, 1, 1, 1, 1, 1, 1, 1, 1], False),  # 43
    Part.LineSegment(App.Vector(0.54386, 2.236842, 0), App.Vector(-5.140351, 2.236842, 0)),  # 44
    Part.BSplineCurve([App.Vector(-3.45614, 3.640351, 0), App.Vector(-3.5418, 3.561393, 0), App.Vector(-3.707291, 3.40885, 0), App.Vector(-3.949966, 3.188755, 0), App.Vector(-4.180392, 2.987823, 0), App.Vector(-4.396118, 2.80116, 0), App.Vector(-4.601116, 2.636424, 0), App.Vector(-4.791908, 2.486475, 0), App.Vector(-4.969613, 2.354753, 0), App.Vector(-5.085567, 2.274675, 0), App.Vector(-5.140351, 2.236842, 0)], [4, 1, 1, 1, 1, 1, 1, 1, 4], [0, 1.27415176, 2.461606039, 3.582951637, 4.617898728, 5.581273312, 6.458861859, 7.271871757, 8], False, 3, [1, 1, 1, 1, 1, 1, 1, 1, 1, 1, 1], False),  # 45
    Part.LineSegment(App.Vector(-3.45614, 3.640351, 0), App.Vector(1.596491, 3.640351, 0)),  # 46
    Part.BSplineCurve([App.Vector(0.54386, 2.236842, 0), App.Vector(0.617151, 2.3546, 0), App.Vector(0.766291, 2.594228, 0), App.Vector(1.017408, 2.945406, 0), App.Vector(1.295469, 3.295569, 0), App.Vector(1.495062, 3.524177, 0), App.Vector(1.596491, 3.640351, 0)], [4, 1, 1, 1, 4], [0, 0.947173216, 1.927410771, 2.946751592, 4], False, 3, [1, 1, 1, 1, 1, 1, 1], False),  # 47
], False)
sketch2.addConstraint([
    Sketcher.Constraint("Block", 0),
    Sketcher.Constraint("Block", 1),
    Sketcher.Constraint("Block", 3),
    Sketcher.Constraint("Block", 4),
    Sketcher.Constraint("Block", 6),
    Sketcher.Constraint("Block", 8),
    Sketcher.Constraint("Block", 9),
    Sketcher.Constraint("Block", 10),
    Sketcher.Constraint("Block", 11),
    Sketcher.Constraint("Block", 12),
    Sketcher.Constraint("Block", 13),
    Sketcher.Constraint("Block", 15),
    Sketcher.Constraint("Block", 16),
    Sketcher.Constraint("Block", 17),
    Sketcher.Constraint("Block", 18),
    Sketcher.Constraint("Block", 19),
    Sketcher.Constraint("Block", 20),
    Sketcher.Constraint("Block", 21),
    Sketcher.Constraint("Block", 22),
    Sketcher.Constraint("Block", 23),
    Sketcher.Constraint("Block", 24),
    Sketcher.Constraint("Block", 25),
    Sketcher.Constraint("Block", 26),
    Sketcher.Constraint("Block", 27),
    Sketcher.Constraint("Block", 28),
    Sketcher.Constraint("Block", 29),
    Sketcher.Constraint("Block", 30),
    Sketcher.Constraint("Block", 31),
    Sketcher.Constraint("Block", 32),
    Sketcher.Constraint("Block", 33),
    Sketcher.Constraint("Block", 34),
    Sketcher.Constraint("Block", 35),
    Sketcher.Constraint("Block", 37),
    Sketcher.Constraint("Block", 43),
    Sketcher.Constraint("Block", 45),
    Sketcher.Constraint("Block", 47),
    Sketcher.Constraint("Coincident", 1, 1, 2, 1),
    Sketcher.Constraint("Coincident", 2, 2, 3, 2),
    Sketcher.Constraint("Coincident", 4, 1, 5, 1),
    Sketcher.Constraint("Coincident", 5, 2, 6, 2),
    Sketcher.Constraint("Coincident", 6, 1, 7, 1),
    Sketcher.Constraint("Coincident", 7, 2, 8, 2),
    Sketcher.Constraint("Coincident", 13, 1, 14, 1),
    Sketcher.Constraint("Coincident", 14, 2, 15, 2),
    Sketcher.Constraint("Coincident", 36, 2, 37, 2),
    Sketcher.Constraint("Coincident", 37, 1, 38, 1),
    Sketcher.Constraint("Coincident", 38, 2, 39, 1),
    Sketcher.Constraint("Coincident", 39, 2, 36, 1),
    Sketcher.Constraint("Coincident", 40, 2, 41, 1),
    Sketcher.Constraint("Coincident", 41, 2, 42, 1),
    Sketcher.Constraint("Coincident", 42, 2, 43, 2),
    Sketcher.Constraint("Coincident", 43, 1, 40, 1),
    Sketcher.Constraint("Coincident", 44, 2, 45, 2),
    Sketcher.Constraint("Coincident", 45, 1, 46, 1),
    Sketcher.Constraint("Coincident", 46, 2, 47, 2),
    Sketcher.Constraint("Coincident", 47, 1, 44, 1),
    Sketcher.Constraint("Horizontal", 36),
    Sketcher.Constraint("Horizontal", 38),
    Sketcher.Constraint("Vertical", 39),
    Sketcher.Constraint("Horizontal", 40),
    Sketcher.Constraint("Vertical", 41),
    Sketcher.Constraint("Horizontal", 42),
    Sketcher.Constraint("DistanceX", 42, 1, 42, 2, Q("4.140351 mm")),
    Sketcher.Constraint("DistanceX", 36, 2, 36, 1, Q("4.701754 mm")),
])
pad2 = body.newObject("PartDesign::Pad", "Pad001")
pad2.Profile = sketch2
pad2.Length = 0.1

# Sketch on XY plane
sketch3 = body.newObject("Sketcher::SketchObject", "Sketch002")
sketch3.AttachmentSupport = (doc.getObject("XY_Plane"), [""])
sketch3.MapMode = "FlatFace"
sketch3.addGeometry([
    Part.Circle(App.Vector(0, 0, 0), App.Vector(0, 0, 1), 13),
    Part.Circle(App.Vector(0, 0, 0), App.Vector(0, 0, 1), 13),
], False)
sketch3.addConstraint([
    Sketcher.Constraint("Coincident", 0, 3, -1, 1),
    Sketcher.Constraint("Coincident", 1, 3, -1, 1),
    Sketcher.Constraint("Diameter", 0, Q("26.2 mm")),
    Sketcher.Constraint("Diameter", 1, Q("25.4 mm")),
])
pad3 = body.newObject("PartDesign::Pad", "Pad002")
pad3.Profile = sketch3
pad3.Length = 0.08

doc.recompute()
